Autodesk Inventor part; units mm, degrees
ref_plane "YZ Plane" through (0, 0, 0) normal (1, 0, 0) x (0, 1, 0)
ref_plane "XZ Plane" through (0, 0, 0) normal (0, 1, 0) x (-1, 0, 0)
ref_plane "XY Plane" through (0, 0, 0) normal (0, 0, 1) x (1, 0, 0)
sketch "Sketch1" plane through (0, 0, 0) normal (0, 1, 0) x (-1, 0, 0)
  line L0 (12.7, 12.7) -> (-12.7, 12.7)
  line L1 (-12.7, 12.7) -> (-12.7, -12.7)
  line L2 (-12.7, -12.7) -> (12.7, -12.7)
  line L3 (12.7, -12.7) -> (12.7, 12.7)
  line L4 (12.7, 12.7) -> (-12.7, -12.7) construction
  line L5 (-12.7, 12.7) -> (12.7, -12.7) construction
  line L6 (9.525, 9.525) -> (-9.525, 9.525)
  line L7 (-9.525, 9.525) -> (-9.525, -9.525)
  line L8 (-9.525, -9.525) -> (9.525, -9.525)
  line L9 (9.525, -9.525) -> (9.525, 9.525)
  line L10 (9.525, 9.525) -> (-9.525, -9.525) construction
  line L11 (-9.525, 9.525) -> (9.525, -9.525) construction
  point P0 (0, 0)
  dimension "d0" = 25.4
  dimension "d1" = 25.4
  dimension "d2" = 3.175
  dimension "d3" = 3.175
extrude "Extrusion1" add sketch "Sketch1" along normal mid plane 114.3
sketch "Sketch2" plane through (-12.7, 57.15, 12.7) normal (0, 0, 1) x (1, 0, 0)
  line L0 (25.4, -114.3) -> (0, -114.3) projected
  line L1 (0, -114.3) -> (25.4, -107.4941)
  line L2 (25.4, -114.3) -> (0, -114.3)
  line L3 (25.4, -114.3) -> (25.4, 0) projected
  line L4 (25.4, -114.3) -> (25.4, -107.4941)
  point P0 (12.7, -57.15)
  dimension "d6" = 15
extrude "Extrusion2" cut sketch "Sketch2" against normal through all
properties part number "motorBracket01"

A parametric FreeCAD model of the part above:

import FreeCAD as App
import Part
import Sketcher

V = App.Vector
Q = App.Units.Quantity


def add_polygon(sketch, points):
    """Adds a closed chain of lines whose ends are joined by coincident constraints."""
    first, n = sketch.GeometryCount, len(points)
    for a, b in zip(points, points[1:] + points[:1]):
        sketch.addGeometry(Part.LineSegment(App.Vector(*a, 0), App.Vector(*b, 0)), False)
    for i in range(n):
        sketch.addConstraint(Sketcher.Constraint("Coincident", first + i, 2, first + (i + 1) % n, 1))

doc = App.newDocument("Part")
body = doc.addObject("PartDesign::Body", "Body")

# Sketch on XZ plane
sketch1 = body.newObject("Sketcher::SketchObject", "Sketch")
sketch1.AttachmentSupport = (doc.getObject("XZ_Plane"), [""])
sketch1.MapMode = "FlatFace"
add_polygon(sketch1, [(-13, -13), (-13, 13), (13, 13), (13, -13)])  # lines 0-3
add_polygon(sketch1, [(10, 10), (-10, 10), (-10, -10), (10, -10)])  # lines 4-7
sketch1.addConstraint([
    Sketcher.Constraint("Vertical", 0),
    Sketcher.Constraint("Horizontal", 1),
    Sketcher.Constraint("Vertical", 2),
    Sketcher.Constraint("Horizontal", 3),
    Sketcher.Constraint("Horizontal", 4),
    Sketcher.Constraint("Vertical", 5),
    Sketcher.Constraint("Horizontal", 6),
    Sketcher.Constraint("Vertical", 7),
    Sketcher.Constraint("Symmetric", 0, 2, 2, 2, -1, 1),
    Sketcher.Constraint("Symmetric", 4, 2, 6, 2, -1, 1),
    Sketcher.Constraint("Equal", 3, 0),
    Sketcher.Constraint("Equal", 6, 5),
    Sketcher.Constraint("DistanceX", 1, 1, 1, 2, Q("1 in")),
    Sketcher.Constraint("DistanceX", 0, 2, 4, 2, Q("0.125 in")),
])
pad1 = body.newObject("PartDesign::Pad", "Pad")
pad1.Profile = sketch1
pad1.Length = Q("4.5 in")
pad1.Midplane = True

# Sketch on XY plane
sketch2 = body.newObject("Sketcher::SketchObject", "Sketch001")
sketch2.AttachmentSupport = (doc.getObject("XY_Plane"), [""])
sketch2.MapMode = "FlatFace"
sketch2.AttachmentOffset = App.Placement(V(0, 0, 0.5 * 25.4), App.Rotation())
add_polygon(sketch2, [(-13, -57), (13, -57), (13, -50)])  # lines 0-2
sketch2.addConstraint([
    Sketcher.Constraint("Horizontal", 0),
    Sketcher.Constraint("Vertical", 1),
    Sketcher.Constraint("DistanceX", 0, 1, 0, 2, Q("1 in")),
    Sketcher.Constraint("Angle", 2, Q("-165 deg")),
    Sketcher.Constraint("DistanceX", -1, 1, 0, 2, Q("0.5 in")),
    Sketcher.Constraint("DistanceY", 0, 2, -1, 1, Q("2.25 in")),
])
pocket1 = body.newObject("PartDesign::Pocket", "Pocket")
pocket1.Profile = sketch2
pocket1.Type = "ThroughAll"

doc.recompute()
